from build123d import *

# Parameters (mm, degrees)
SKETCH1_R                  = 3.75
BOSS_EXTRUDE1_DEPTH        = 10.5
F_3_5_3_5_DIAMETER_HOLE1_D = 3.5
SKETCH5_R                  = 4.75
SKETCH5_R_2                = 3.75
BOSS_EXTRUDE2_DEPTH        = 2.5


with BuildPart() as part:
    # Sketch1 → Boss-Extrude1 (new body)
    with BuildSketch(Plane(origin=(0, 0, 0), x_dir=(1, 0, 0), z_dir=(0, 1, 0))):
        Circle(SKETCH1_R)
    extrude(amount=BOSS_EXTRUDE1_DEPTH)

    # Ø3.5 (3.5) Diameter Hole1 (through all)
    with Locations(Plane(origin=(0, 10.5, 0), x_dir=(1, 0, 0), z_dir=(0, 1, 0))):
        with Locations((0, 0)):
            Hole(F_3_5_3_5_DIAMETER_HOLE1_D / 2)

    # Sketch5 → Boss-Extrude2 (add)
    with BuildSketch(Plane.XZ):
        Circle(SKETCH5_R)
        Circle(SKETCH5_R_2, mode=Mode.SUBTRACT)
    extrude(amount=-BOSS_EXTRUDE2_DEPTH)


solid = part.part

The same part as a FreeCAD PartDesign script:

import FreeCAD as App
import Part
import Sketcher

V = App.Vector
Q = App.Units.Quantity

doc = App.newDocument("Part")
params = doc.addObject("Spreadsheet::Sheet", "Params")
for row, (alias, value) in enumerate([
    ("sketch1_diameter", "7.5 mm"),
    ("pad1_length", "10.5 mm"),
    ("sketch2_diameter", "3.5 mm"),
    ("hole_diameter", "3.5 mm"),
    ("sketch3_diameter", "9.5 mm"),
    ("sketch3_diameter2", "7.5 mm"),
    ("pad2_length", "2.5 mm"),
], start=1):
    params.set(f"A{row}", alias)
    params.set(f"B{row}", "=" + value)
    params.setAlias(f"B{row}", alias)

body = doc.addObject("PartDesign::Body", "Body")

sketch1 = body.newObject("Sketcher::SketchObject", "Sketch")
sketch1.AttachmentSupport = (doc.getObject("XZ_Plane"), [""])
sketch1.MapMode = "FlatFace"
sketch1.addGeometry(Part.Circle(V(0, 0, 0), V(0, 0, 1), 3.75), False)
sketch1.addConstraint(Sketcher.Constraint("Coincident", 0, 3, -1, 1))
sketch1.addConstraint(Sketcher.Constraint("Diameter", 0, Q("7.5 mm")))
sketch1.setExpression("Constraints[1]", "Params.sketch1_diameter")
pad1 = body.newObject("PartDesign::Pad", "Pad")
pad1.Profile = sketch1
pad1.setExpression("Length", "Params.pad1_length")
pad1.Reversed = True

sketch2 = body.newObject("Sketcher::SketchObject", "Sketch001")
sketch2.AttachmentSupport = (doc.getObject("XZ_Plane"), [""])
sketch2.MapMode = "FlatFace"
sketch2.AttachmentOffset = App.Placement(V(0, 0, -10.5), App.Rotation())
sketch2.addGeometry(Part.Circle(V(0, 0, 0), V(0, 0, 1), 1.75), False)
sketch2.addConstraint(Sketcher.Constraint("Coincident", 0, 3, -1, 1))
sketch2.addConstraint(Sketcher.Constraint("Diameter", 0, Q("3.5 mm")))
sketch2.setExpression("Constraints[1]", "Params.sketch2_diameter")
doc.recompute()
hole = body.newObject("PartDesign::Hole", "Hole")
hole.Profile = sketch2
hole.ThreadType = "None"
hole.setExpression("Diameter", "Params.hole_diameter")
hole.DepthType = "ThroughAll"
hole.Reversed = True

sketch3 = body.newObject("Sketcher::SketchObject", "Sketch002")
sketch3.AttachmentSupport = (doc.getObject("XZ_Plane"), [""])
sketch3.MapMode = "FlatFace"
sketch3.addGeometry(Part.Circle(V(0, 0, 0), V(0, 0, 1), 4.75), False)
sketch3.addGeometry(Part.Circle(V(0, 0, 0), V(0, 0, 1), 3.75), False)
sketch3.addConstraint(Sketcher.Constraint("Coincident", 0, 3, -1, 1))
sketch3.addConstraint(Sketcher.Constraint("Coincident", 1, 3, -1, 1))
sketch3.addConstraint(Sketcher.Constraint("Diameter", 0, Q("9.5 mm")))
sketch3.addConstraint(Sketcher.Constraint("Diameter", 1, Q("7.5 mm")))
sketch3.setExpression("Constraints[2]", "Params.sketch3_diameter")
sketch3.setExpression("Constraints[3]", "Params.sketch3_diameter2")
pad2 = body.newObject("PartDesign::Pad", "Pad001")
pad2.Profile = sketch3
pad2.setExpression("Length", "Params.pad2_length")
pad2.Reversed = True

doc.recompute()
